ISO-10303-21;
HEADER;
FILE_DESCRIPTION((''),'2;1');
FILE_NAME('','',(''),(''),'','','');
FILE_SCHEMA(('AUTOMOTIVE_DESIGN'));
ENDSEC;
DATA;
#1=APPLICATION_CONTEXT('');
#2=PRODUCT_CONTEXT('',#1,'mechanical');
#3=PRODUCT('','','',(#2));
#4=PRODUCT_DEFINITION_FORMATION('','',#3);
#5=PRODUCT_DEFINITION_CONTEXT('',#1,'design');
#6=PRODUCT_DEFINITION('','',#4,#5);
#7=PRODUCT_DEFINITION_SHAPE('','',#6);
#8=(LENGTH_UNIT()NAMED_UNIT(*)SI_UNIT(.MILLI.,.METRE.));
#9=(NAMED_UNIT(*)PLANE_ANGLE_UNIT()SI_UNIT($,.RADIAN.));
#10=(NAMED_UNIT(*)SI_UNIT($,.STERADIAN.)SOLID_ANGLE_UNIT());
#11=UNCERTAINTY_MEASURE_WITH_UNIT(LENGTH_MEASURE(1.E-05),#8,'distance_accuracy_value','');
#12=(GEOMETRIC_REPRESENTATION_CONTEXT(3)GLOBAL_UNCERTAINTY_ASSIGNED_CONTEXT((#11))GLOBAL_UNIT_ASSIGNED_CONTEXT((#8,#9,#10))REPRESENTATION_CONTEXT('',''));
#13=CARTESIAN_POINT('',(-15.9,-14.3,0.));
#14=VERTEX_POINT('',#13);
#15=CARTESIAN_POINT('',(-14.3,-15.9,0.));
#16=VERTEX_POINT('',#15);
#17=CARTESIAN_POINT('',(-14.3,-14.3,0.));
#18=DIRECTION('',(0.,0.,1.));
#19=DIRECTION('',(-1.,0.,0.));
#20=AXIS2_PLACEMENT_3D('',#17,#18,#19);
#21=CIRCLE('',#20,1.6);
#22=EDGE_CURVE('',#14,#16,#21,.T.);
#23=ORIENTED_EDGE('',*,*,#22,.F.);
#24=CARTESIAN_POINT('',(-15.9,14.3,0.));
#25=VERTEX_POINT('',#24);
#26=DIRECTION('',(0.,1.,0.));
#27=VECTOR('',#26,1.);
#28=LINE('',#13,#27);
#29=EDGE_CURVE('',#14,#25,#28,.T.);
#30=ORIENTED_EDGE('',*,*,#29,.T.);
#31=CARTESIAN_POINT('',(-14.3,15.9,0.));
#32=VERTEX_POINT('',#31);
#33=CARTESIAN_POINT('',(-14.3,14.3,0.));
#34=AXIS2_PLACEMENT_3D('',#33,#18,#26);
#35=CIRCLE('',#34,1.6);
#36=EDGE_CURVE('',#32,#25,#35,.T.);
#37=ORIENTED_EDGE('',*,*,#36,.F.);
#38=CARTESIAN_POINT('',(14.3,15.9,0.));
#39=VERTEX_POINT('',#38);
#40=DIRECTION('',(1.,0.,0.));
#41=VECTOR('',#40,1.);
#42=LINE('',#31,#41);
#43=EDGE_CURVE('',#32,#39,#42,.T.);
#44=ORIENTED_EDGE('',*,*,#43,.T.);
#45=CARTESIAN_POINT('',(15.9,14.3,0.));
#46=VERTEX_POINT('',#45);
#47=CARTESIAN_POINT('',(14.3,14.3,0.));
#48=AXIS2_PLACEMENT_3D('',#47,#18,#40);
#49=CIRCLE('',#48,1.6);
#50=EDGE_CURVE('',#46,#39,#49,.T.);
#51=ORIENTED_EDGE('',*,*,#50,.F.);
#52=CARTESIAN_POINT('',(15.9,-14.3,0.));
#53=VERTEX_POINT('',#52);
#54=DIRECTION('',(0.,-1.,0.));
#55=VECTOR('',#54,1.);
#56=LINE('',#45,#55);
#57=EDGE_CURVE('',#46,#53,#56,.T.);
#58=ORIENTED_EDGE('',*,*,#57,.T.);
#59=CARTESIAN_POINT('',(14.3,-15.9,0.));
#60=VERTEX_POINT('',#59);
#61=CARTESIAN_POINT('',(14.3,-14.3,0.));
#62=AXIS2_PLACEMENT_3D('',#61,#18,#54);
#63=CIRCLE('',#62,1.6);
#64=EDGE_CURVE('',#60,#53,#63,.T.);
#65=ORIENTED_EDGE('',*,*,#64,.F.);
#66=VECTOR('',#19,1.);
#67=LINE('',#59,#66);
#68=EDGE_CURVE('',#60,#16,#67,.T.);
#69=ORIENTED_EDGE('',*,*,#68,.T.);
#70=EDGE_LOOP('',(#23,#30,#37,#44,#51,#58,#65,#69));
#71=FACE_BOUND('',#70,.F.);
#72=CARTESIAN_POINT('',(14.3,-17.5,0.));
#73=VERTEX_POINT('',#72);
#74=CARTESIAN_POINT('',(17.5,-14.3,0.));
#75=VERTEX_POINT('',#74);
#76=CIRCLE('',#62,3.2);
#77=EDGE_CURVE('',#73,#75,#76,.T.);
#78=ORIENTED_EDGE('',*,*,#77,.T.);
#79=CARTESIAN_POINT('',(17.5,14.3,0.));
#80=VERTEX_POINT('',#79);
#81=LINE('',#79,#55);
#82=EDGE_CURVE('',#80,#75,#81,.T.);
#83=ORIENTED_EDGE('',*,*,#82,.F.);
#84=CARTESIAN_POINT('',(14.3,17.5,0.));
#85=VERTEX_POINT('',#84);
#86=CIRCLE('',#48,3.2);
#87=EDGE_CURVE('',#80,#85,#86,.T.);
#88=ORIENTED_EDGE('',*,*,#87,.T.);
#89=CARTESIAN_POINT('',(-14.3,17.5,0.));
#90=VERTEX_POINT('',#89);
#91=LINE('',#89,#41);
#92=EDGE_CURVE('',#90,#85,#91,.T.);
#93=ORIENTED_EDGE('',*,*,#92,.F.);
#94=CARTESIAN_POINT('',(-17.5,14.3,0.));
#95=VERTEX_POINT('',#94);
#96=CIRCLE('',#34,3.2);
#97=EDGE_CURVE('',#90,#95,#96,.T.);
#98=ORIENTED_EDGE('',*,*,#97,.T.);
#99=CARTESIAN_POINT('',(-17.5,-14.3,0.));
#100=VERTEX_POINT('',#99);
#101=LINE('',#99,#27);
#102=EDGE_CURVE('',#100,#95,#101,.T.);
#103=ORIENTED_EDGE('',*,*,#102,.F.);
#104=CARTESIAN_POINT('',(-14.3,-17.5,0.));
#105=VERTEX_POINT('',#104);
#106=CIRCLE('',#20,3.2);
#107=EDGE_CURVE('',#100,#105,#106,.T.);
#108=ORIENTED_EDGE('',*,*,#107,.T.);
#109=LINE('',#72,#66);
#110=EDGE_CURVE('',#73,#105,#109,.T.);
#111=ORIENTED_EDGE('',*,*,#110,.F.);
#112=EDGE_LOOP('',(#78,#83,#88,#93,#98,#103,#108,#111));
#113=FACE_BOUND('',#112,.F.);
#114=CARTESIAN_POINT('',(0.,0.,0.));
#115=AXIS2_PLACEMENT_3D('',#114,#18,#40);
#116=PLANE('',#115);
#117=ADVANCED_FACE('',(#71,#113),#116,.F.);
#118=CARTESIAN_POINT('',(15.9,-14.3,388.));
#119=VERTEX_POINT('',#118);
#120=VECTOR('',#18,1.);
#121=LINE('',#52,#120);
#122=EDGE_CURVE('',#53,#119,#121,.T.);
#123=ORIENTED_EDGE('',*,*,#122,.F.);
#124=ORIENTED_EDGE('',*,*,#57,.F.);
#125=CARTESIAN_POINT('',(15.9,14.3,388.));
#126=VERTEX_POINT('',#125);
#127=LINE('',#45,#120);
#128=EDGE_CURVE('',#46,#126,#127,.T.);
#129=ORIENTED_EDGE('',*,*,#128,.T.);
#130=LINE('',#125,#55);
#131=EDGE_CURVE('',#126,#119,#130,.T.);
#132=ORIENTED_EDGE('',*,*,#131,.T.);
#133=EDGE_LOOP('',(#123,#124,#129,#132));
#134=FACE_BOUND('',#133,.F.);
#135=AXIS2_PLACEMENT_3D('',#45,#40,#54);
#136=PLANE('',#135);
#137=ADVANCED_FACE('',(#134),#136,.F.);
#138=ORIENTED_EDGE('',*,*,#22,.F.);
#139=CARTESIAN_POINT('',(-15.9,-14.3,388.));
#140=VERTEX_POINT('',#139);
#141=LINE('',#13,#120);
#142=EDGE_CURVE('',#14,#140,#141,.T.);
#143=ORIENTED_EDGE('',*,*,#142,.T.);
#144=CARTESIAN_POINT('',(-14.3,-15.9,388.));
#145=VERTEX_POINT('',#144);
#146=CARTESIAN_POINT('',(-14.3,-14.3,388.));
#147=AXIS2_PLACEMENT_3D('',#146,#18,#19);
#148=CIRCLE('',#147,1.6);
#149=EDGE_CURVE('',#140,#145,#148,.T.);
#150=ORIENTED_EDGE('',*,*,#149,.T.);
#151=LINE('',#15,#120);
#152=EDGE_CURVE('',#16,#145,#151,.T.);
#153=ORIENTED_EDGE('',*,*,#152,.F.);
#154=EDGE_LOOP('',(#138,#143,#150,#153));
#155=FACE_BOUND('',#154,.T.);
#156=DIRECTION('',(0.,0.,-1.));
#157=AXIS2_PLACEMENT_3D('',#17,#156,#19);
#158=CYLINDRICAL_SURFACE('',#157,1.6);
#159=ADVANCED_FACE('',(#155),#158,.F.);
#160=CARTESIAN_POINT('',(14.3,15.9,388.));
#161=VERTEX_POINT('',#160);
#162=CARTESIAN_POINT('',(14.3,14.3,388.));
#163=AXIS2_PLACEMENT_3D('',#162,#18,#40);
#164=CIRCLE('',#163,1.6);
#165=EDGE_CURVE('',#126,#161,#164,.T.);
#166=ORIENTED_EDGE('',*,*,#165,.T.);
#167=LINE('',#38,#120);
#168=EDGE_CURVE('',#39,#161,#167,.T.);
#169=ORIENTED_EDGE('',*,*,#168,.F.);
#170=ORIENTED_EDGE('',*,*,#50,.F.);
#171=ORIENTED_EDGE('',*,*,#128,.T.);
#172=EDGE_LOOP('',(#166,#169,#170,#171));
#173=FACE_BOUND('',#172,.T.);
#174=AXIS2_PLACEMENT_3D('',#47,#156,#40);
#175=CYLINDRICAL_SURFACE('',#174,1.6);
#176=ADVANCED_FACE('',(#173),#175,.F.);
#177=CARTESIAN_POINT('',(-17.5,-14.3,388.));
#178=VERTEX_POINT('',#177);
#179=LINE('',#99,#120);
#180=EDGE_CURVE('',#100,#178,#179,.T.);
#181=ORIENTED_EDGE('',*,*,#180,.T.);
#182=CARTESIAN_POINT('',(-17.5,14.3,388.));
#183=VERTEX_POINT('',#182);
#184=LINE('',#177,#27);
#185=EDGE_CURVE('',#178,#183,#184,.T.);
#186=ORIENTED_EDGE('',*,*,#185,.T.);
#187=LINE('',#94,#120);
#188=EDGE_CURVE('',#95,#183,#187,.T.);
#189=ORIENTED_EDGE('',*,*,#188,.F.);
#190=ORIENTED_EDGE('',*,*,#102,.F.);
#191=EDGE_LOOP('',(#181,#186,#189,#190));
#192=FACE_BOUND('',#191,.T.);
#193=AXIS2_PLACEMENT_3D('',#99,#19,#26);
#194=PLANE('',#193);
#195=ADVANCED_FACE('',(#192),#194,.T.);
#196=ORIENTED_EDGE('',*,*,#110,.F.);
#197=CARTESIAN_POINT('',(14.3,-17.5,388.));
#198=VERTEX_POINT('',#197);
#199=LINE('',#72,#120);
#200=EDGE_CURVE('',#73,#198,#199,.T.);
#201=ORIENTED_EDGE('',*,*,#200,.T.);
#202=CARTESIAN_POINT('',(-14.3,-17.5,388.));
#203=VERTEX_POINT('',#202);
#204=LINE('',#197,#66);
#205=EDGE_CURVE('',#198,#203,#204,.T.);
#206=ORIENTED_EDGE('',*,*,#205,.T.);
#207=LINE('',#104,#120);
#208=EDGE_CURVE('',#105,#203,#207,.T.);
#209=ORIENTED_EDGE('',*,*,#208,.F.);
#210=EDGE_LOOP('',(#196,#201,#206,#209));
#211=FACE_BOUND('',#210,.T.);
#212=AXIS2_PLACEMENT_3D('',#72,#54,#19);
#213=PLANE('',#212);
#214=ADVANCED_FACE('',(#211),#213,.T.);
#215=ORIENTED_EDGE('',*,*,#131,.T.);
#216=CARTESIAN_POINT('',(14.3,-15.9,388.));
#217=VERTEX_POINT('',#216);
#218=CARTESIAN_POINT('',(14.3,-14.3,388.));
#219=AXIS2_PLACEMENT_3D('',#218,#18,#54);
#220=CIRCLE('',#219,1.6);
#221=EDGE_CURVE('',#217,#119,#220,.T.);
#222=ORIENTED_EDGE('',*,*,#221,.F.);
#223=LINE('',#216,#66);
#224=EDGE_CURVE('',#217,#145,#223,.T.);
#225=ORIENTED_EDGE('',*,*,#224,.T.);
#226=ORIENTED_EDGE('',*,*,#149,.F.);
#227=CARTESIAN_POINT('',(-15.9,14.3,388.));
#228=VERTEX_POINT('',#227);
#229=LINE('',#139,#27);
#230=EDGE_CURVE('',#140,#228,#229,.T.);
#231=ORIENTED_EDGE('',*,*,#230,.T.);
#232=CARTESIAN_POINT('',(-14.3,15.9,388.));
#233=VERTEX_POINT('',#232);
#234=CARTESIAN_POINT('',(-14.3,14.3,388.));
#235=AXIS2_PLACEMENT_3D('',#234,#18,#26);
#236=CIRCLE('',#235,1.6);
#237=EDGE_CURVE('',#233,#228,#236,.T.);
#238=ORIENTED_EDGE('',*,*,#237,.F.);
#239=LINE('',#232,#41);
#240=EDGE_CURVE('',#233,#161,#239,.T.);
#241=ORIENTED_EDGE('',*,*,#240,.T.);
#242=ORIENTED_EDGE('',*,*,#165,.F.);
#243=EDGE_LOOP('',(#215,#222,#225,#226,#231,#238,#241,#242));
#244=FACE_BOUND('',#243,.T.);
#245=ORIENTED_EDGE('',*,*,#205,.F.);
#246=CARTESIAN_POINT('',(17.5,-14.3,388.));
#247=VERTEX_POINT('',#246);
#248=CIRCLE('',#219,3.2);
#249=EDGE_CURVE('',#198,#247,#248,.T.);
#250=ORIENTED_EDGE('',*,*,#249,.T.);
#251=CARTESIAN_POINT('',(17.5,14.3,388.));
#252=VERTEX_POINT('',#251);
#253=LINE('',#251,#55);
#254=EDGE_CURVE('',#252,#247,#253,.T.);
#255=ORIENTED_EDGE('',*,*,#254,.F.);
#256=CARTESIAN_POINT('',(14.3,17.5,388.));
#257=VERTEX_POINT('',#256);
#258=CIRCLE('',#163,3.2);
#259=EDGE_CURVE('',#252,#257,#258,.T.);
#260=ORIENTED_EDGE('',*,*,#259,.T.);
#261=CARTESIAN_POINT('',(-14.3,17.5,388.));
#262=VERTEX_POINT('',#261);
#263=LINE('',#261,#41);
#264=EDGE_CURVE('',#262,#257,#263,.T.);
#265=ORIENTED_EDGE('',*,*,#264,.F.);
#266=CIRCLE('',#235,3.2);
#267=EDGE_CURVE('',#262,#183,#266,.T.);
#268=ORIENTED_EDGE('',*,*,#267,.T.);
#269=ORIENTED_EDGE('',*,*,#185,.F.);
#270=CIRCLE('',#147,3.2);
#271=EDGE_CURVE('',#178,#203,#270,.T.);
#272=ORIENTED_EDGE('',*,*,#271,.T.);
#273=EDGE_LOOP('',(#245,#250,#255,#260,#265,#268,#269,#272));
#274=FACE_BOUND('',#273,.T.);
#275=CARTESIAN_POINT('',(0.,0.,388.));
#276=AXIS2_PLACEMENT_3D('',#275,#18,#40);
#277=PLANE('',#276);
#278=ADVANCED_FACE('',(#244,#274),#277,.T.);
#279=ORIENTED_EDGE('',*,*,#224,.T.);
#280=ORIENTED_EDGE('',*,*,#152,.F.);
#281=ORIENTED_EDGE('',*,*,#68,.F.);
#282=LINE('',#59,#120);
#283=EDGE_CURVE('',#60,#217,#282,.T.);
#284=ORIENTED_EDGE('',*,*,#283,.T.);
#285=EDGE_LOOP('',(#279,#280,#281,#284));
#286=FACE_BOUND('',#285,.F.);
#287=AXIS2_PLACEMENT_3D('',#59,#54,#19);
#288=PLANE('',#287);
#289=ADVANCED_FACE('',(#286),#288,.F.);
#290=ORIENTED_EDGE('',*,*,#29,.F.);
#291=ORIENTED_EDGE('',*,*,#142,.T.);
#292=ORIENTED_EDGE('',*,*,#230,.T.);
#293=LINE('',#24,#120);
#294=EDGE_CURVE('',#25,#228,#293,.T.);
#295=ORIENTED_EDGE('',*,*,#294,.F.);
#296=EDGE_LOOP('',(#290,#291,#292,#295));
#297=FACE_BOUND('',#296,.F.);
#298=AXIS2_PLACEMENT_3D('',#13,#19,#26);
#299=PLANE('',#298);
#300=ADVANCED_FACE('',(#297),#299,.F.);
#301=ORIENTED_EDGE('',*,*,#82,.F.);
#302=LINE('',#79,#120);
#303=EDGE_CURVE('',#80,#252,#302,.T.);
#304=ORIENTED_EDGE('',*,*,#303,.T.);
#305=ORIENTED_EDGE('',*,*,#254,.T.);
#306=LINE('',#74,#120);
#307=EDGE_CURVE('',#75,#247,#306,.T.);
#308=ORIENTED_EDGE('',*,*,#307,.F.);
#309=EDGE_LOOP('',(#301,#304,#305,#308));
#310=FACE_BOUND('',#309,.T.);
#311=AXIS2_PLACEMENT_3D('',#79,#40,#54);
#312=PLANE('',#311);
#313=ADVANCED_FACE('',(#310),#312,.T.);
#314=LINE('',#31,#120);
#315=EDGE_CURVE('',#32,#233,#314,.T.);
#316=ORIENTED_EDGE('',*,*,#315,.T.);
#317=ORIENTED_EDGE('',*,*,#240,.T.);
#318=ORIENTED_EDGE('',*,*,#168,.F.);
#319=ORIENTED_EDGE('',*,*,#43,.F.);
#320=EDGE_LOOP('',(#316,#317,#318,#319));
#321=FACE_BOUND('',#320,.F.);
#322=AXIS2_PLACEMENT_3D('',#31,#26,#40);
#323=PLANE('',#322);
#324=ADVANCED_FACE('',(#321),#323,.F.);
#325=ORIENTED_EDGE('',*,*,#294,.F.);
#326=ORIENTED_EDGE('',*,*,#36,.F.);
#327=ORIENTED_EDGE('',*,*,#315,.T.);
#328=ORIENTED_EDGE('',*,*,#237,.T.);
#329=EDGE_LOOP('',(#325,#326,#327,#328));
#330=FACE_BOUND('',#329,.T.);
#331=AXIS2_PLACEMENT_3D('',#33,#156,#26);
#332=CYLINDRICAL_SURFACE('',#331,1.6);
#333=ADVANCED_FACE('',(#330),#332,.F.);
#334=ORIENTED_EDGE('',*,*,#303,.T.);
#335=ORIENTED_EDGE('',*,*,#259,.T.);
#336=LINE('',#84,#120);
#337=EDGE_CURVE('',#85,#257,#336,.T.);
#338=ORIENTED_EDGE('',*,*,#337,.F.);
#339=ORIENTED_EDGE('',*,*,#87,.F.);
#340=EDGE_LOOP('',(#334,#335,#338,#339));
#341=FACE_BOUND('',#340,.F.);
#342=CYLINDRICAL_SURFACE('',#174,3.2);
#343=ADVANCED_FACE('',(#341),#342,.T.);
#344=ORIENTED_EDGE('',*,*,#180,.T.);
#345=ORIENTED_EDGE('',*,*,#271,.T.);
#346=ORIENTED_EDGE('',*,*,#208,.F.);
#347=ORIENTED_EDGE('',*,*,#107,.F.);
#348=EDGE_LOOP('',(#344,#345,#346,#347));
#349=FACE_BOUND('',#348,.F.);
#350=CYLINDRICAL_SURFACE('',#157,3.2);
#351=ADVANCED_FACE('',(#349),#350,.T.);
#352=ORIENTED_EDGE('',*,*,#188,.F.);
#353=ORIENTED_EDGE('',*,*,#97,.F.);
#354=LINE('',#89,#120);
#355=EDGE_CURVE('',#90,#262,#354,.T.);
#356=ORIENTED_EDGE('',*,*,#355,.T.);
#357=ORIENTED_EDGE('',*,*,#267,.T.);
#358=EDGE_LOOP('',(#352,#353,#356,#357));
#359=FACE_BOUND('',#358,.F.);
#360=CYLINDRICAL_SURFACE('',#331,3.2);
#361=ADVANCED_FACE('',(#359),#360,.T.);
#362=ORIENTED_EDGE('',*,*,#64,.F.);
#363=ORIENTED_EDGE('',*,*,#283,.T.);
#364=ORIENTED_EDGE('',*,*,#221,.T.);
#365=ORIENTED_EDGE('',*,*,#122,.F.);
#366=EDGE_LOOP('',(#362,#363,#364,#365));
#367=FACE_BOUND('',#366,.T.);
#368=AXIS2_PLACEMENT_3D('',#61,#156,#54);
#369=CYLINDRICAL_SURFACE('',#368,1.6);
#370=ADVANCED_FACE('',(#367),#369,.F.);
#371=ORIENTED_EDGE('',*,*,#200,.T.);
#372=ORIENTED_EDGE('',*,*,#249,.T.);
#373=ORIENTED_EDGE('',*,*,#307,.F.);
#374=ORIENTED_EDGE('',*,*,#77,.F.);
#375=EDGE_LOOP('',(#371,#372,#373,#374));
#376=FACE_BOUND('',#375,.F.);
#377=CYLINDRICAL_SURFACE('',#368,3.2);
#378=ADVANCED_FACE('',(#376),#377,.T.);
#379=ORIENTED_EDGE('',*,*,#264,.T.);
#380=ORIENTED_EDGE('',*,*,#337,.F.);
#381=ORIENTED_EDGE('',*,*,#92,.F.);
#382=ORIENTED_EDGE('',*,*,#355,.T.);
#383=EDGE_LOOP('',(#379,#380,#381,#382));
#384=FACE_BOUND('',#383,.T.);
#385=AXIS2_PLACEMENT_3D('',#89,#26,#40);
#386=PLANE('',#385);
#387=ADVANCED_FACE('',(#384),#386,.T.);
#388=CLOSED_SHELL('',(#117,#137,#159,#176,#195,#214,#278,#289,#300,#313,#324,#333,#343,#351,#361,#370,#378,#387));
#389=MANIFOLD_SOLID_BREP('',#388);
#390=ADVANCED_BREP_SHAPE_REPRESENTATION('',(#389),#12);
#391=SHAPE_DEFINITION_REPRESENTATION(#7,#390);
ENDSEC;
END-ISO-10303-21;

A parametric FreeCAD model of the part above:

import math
import FreeCAD as App
import Part
import Sketcher
from FreeCAD import Vector

doc = App.newDocument("Part")
body = doc.addObject("PartDesign::Body", "Body")

# Sketch on XY plane
sketch1 = body.newObject("Sketcher::SketchObject", "Sketch")
sketch1.AttachmentSupport = (doc.getObject("XY_Plane"), [""])
sketch1.MapMode = "FlatFace"
sketch1.addGeometry([
    Part.LineSegment(Vector(-17.5, 14.3, 0), Vector(-17.5, -14.3, 0)),  # 0
    Part.ArcOfCircle(Part.Circle(Vector(-14.3, -14.3, 0), Vector(0, 0, 1), 3.2), math.radians(180), math.radians(270)),  # 1
    Part.LineSegment(Vector(-14.3, -17.5, 0), Vector(14.3, -17.5, 0)),  # 2
    Part.ArcOfCircle(Part.Circle(Vector(14.3, -14.3, 0), Vector(0, 0, 1), 3.2), math.radians(-90), math.radians(0)),  # 3
    Part.LineSegment(Vector(17.5, -14.3, 0), Vector(17.5, 14.3, 0)),  # 4
    Part.ArcOfCircle(Part.Circle(Vector(14.3, 14.3, 0), Vector(0, 0, 1), 3.2), math.radians(0), math.radians(90)),  # 5
    Part.LineSegment(Vector(14.3, 17.5, 0), Vector(-14.3, 17.5, 0)),  # 6
    Part.ArcOfCircle(Part.Circle(Vector(-14.3, 14.3, 0), Vector(0, 0, 1), 3.2), math.radians(90), math.radians(180)),  # 7
    Part.ArcOfCircle(Part.Circle(Vector(-14.3, 14.3, 0), Vector(0, 0, 1), 1.6), math.radians(90), math.radians(180)),  # 8
    Part.LineSegment(Vector(-14.3, 15.9, 0), Vector(14.3, 15.9, 0)),  # 9
    Part.ArcOfCircle(Part.Circle(Vector(14.3, 14.3, 0), Vector(0, 0, 1), 1.6), math.radians(0), math.radians(90)),  # 10
    Part.LineSegment(Vector(15.9, 14.3, 0), Vector(15.9, -14.3, 0)),  # 11
    Part.ArcOfCircle(Part.Circle(Vector(14.3, -14.3, 0), Vector(0, 0, 1), 1.6), math.radians(-90), math.radians(0)),  # 12
    Part.LineSegment(Vector(14.3, -15.9, 0), Vector(-14.3, -15.9, 0)),  # 13
    Part.ArcOfCircle(Part.Circle(Vector(-14.3, -14.3, 0), Vector(0, 0, 1), 1.6), math.radians(180), math.radians(270)),  # 14
    Part.LineSegment(Vector(-15.9, -14.3, 0), Vector(-15.9, 14.3, 0)),  # 15
], False)
sketch1.addConstraint([
    Sketcher.Constraint("Tangent", 0, 2, 1, 1),
    Sketcher.Constraint("Tangent", 1, 2, 2, 1),
    Sketcher.Constraint("Tangent", 2, 2, 3, 1),
    Sketcher.Constraint("Tangent", 3, 2, 4, 1),
    Sketcher.Constraint("Tangent", 4, 2, 5, 1),
    Sketcher.Constraint("Tangent", 5, 2, 6, 1),
    Sketcher.Constraint("Tangent", 6, 2, 7, 1),
    Sketcher.Constraint("Tangent", 7, 2, 0, 1),
    Sketcher.Constraint("Tangent", 8, 1, 9, 1),
    Sketcher.Constraint("Tangent", 9, 2, 10, 2),
    Sketcher.Constraint("Tangent", 10, 1, 11, 1),
    Sketcher.Constraint("Tangent", 11, 2, 12, 2),
    Sketcher.Constraint("Tangent", 12, 1, 13, 1),
    Sketcher.Constraint("Tangent", 13, 2, 14, 2),
    Sketcher.Constraint("Tangent", 14, 1, 15, 1),
    Sketcher.Constraint("Tangent", 15, 2, 8, 2),
    Sketcher.Constraint("Vertical", 0),
    Sketcher.Constraint("Horizontal", 2),
    Sketcher.Constraint("Vertical", 4),
    Sketcher.Constraint("Horizontal", 6),
    Sketcher.Constraint("Horizontal", 9),
    Sketcher.Constraint("Vertical", 11),
    Sketcher.Constraint("Horizontal", 13),
    Sketcher.Constraint("Vertical", 15),
    Sketcher.Constraint("Coincident", 8, 3, 7, 3),
    Sketcher.Constraint("Coincident", 10, 3, 5, 3),
    Sketcher.Constraint("Coincident", 12, 3, 3, 3),
    Sketcher.Constraint("Equal", 1, 3),
    Sketcher.Constraint("Equal", 3, 5),
    Sketcher.Constraint("Equal", 5, 7),
    Sketcher.Constraint("Equal", 12, 14),
    Sketcher.Constraint("Symmetric", 1, 3, 5, 3, -1, 1),
    Sketcher.Constraint("Equal", 13, 0),
    Sketcher.Constraint("Radius", 1, 3.2),
    Sketcher.Constraint("Radius", 8, 1.6),
    Sketcher.Constraint("DistanceX", 0, 2, -1, 1, 17.5),
])
pad1 = body.newObject("PartDesign::Pad", "Pad")
pad1.Profile = sketch1
pad1.Length = 388

doc.recompute()
